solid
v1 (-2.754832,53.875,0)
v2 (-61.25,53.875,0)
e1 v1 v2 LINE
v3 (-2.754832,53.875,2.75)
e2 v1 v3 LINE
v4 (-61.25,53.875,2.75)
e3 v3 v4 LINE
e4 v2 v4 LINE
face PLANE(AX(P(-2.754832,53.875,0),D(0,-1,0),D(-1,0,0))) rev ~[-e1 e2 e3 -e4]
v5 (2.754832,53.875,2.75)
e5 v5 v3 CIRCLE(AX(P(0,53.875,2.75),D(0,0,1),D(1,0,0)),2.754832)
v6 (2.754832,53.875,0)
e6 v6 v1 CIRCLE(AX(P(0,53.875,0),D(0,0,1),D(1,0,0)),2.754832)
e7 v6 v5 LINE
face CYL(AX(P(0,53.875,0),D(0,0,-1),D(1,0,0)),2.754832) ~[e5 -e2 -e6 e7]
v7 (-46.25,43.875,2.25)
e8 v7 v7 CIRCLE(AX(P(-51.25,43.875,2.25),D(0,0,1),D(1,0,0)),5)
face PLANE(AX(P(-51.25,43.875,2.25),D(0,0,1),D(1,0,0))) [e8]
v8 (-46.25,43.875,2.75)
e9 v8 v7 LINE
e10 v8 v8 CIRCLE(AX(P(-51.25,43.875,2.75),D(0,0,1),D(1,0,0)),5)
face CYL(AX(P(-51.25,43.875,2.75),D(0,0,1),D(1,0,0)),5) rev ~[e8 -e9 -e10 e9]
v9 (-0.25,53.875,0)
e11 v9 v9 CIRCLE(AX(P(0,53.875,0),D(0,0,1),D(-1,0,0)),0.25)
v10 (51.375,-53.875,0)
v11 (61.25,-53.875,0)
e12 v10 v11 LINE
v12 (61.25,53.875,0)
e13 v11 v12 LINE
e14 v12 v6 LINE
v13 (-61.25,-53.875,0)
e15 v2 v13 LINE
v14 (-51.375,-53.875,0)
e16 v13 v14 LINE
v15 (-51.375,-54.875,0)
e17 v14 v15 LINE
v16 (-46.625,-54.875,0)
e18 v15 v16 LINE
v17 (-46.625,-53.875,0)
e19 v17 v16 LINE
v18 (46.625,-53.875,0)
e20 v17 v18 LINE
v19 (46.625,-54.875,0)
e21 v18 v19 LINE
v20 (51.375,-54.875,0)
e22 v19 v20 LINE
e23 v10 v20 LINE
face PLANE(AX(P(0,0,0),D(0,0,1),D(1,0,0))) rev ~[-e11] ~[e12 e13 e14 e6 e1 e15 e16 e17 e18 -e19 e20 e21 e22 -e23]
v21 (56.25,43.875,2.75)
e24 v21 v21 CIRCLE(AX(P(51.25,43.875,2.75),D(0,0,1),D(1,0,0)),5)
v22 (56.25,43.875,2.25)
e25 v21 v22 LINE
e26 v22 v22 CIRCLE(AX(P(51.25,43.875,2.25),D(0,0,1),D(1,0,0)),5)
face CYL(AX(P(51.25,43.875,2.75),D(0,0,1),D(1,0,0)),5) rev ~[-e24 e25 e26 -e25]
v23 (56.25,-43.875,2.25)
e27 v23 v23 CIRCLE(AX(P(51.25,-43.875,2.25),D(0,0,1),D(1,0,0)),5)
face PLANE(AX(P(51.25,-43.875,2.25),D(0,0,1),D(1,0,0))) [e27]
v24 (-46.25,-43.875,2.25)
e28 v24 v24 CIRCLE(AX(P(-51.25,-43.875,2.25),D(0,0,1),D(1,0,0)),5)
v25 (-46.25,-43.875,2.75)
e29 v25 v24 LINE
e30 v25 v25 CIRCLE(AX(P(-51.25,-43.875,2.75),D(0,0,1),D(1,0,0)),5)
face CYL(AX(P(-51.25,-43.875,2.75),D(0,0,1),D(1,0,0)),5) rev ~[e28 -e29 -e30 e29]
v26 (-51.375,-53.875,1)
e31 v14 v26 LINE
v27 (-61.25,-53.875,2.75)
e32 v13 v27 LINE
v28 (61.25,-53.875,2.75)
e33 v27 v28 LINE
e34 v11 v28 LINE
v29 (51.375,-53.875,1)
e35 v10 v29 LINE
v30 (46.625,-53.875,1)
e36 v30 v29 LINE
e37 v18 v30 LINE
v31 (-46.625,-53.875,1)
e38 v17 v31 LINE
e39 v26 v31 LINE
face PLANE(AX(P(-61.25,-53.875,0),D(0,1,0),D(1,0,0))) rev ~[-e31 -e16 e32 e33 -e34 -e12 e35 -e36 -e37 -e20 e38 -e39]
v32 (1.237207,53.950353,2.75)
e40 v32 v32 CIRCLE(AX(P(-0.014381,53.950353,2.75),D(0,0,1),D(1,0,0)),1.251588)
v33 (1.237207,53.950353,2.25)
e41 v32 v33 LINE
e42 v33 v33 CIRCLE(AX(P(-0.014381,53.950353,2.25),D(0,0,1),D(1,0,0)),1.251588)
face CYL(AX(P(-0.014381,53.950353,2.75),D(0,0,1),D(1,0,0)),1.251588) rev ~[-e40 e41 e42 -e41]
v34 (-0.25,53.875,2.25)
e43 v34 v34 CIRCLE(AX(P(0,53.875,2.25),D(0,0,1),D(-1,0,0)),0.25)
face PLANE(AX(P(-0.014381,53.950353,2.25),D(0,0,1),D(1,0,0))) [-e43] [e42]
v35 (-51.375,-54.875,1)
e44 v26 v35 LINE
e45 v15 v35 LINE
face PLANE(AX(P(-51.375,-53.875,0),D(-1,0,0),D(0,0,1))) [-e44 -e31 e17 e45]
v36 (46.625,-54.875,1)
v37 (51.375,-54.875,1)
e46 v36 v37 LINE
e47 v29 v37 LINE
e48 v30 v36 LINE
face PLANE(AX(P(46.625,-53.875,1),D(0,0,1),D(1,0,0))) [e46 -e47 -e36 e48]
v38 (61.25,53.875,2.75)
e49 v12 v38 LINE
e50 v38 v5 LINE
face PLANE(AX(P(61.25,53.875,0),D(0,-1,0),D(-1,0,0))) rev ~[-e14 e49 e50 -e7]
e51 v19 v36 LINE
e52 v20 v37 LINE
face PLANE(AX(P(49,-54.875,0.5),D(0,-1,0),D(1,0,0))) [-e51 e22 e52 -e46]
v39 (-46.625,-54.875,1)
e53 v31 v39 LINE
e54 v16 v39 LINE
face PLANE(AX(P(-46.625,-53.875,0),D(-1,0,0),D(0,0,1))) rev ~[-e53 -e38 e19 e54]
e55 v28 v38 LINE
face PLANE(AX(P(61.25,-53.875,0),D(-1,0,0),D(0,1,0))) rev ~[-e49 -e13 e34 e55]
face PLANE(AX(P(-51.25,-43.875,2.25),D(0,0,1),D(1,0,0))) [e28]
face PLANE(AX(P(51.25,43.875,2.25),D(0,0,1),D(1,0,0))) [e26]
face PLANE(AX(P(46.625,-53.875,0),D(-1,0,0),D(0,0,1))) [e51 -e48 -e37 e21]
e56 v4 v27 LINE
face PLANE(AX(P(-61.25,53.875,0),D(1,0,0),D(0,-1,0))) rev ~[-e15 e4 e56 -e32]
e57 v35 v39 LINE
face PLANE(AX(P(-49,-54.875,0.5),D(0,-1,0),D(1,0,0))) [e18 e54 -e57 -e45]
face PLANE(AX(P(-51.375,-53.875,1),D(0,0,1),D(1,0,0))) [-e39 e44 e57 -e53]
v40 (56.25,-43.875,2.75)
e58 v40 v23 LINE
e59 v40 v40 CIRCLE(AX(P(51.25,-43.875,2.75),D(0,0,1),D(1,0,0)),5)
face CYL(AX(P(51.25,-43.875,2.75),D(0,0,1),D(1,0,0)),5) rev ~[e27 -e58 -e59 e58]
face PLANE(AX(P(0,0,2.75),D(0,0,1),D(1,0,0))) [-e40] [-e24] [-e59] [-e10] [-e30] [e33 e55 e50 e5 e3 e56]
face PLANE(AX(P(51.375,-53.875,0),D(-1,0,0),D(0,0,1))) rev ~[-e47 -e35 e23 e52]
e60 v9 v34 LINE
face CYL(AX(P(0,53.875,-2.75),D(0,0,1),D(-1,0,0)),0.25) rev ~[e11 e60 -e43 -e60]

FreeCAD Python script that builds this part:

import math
import FreeCAD as App
import Part
import Sketcher
from FreeCAD import Vector


def add_polygon(sketch, points):
    """Adds a closed chain of lines whose ends are joined by coincident constraints."""
    first, n = sketch.GeometryCount, len(points)
    for a, b in zip(points, points[1:] + points[:1]):
        sketch.addGeometry(Part.LineSegment(App.Vector(*a, 0), App.Vector(*b, 0)), False)
    for i in range(n):
        sketch.addConstraint(Sketcher.Constraint("Coincident", first + i, 2, first + (i + 1) % n, 1))

doc = App.newDocument("Part")
body = doc.addObject("PartDesign::Body", "Body")

sketch1 = body.newObject("Sketcher::SketchObject", "Sketch")
sketch1.AttachmentSupport = (doc.getObject("XY_Plane"), [""])
sketch1.MapMode = "FlatFace"
sketch1.addGeometry([
    Part.LineSegment(Vector(61.25, -53.875, 0), Vector(61.25, 53.875, 0)),
    Part.LineSegment(Vector(61.25, 53.875, 0), Vector(2.754832, 53.875, 0)),
    Part.ArcOfCircle(Part.Circle(Vector(0, 53.875, 0), Vector(0, 0, 1), 2.754832), math.radians(0), math.radians(180)),
    Part.LineSegment(Vector(-2.754832, 53.875, 0), Vector(-61.25, 53.875, 0)),
    Part.LineSegment(Vector(-61.25, 53.875, 0), Vector(-61.25, -53.875, 0)),
    Part.LineSegment(Vector(-61.25, -53.875, 0), Vector(61.25, -53.875, 0)),
], False)
sketch1.addConstraint([
    Sketcher.Constraint("Coincident", 0, 2, 1, 1),
    Sketcher.Constraint("Coincident", 1, 2, 2, 1),
    Sketcher.Constraint("Coincident", 2, 2, 3, 1),
    Sketcher.Constraint("Coincident", 3, 2, 4, 1),
    Sketcher.Constraint("Coincident", 4, 2, 5, 1),
    Sketcher.Constraint("Coincident", 5, 2, 0, 1),
    Sketcher.Constraint("Vertical", 0),
    Sketcher.Constraint("Horizontal", 1),
    Sketcher.Constraint("Horizontal", 3),
    Sketcher.Constraint("Vertical", 4),
    Sketcher.Constraint("Horizontal", 5),
    Sketcher.Constraint("Symmetric", 0, 2, 4, 2, -1, 1),
    Sketcher.Constraint("Symmetric", 1, 2, 2, 2, -2),
    Sketcher.Constraint("Horizontal", 2, 3, 0, 2),
    Sketcher.Constraint("DistanceX", 5, 1, 5, 2, 122.5),
    Sketcher.Constraint("DistanceY", 0, 1, 0, 2, 107.75),
    Sketcher.Constraint("Radius", 2, 2.754832),
])
pad1 = body.newObject("PartDesign::Pad", "Pad")
pad1.Profile = sketch1
pad1.Length = 2.75

sketch2 = body.newObject("Sketcher::SketchObject", "Sketch001")
sketch2.AttachmentSupport = (doc.getObject("XZ_Plane"), [""])
sketch2.MapMode = "FlatFace"
sketch2.AttachmentOffset = App.Placement(Vector(0, 0, 53.875), App.Rotation())
add_polygon(sketch2, [(-51.375, 1), (-51.375, 0), (-46.625, 0), (-46.625, 1)])
add_polygon(sketch2, [(46.625, 1), (46.625, 0), (51.375, 0), (51.375, 1)])
sketch2.addConstraint([
    Sketcher.Constraint("Vertical", 0),
    Sketcher.Constraint("Horizontal", 1),
    Sketcher.Constraint("Vertical", 2),
    Sketcher.Constraint("Horizontal", 3),
    Sketcher.Constraint("Vertical", 4),
    Sketcher.Constraint("Horizontal", 5),
    Sketcher.Constraint("Vertical", 6),
    Sketcher.Constraint("Horizontal", 7),
    Sketcher.Constraint("Symmetric", 1, 2, 4, 2, -1, 1),
    Sketcher.Constraint("Symmetric", 0, 2, 5, 2, -2),
    Sketcher.Constraint("Horizontal", 3, 2, 6, 2),
    Sketcher.Constraint("DistanceY", 0, 2, 0, 1, 1.0),
    Sketcher.Constraint("DistanceX", 0, 2, 4, 2, 98.0),
    Sketcher.Constraint("DistanceX", 1, 1, 1, 2, 4.75),
])
pad2 = body.newObject("PartDesign::Pad", "Pad001")
pad2.Profile = sketch2
pad2.Length = 1

sketch3 = body.newObject("Sketcher::SketchObject", "Sketch002")
sketch3.AttachmentSupport = (doc.getObject("XY_Plane"), [""])
sketch3.MapMode = "FlatFace"
sketch3.addGeometry(Part.Circle(Vector(0, 53.875, 0), Vector(0, 0, 1), 0.25), False)
sketch3.addConstraint([
    Sketcher.Constraint("PointOnObject", 0, 3, -2),
    Sketcher.Constraint("Diameter", 0, 0.5),
    Sketcher.Constraint("DistanceY", -1, 1, 0, 3, 53.875),
])
doc.recompute()
hole = body.newObject("PartDesign::Hole", "Hole")
hole.Profile = sketch3
hole.ThreadType = "None"
hole.Diameter = 0.5
hole.DepthType = "Dimension"
hole.Depth = 2.75
hole.DrillPoint = "Angled"
hole.DrillPointAngle = 118
hole.Reversed = True

sketch4 = body.newObject("Sketcher::SketchObject", "Sketch003")
sketch4.AttachmentSupport = (doc.getObject("XY_Plane"), [""])
sketch4.MapMode = "FlatFace"
sketch4.AttachmentOffset = App.Placement(Vector(0, 0, 2.75), App.Rotation())
sketch4.addGeometry([
    Part.Circle(Vector(51.25, 43.875, 0), Vector(0, 0, 1), 5),
    Part.Circle(Vector(-0.014381, 53.950353, 0), Vector(0, 0, 1), 1.251588),
    Part.Circle(Vector(0, 53.875, 0), Vector(0, 0, 1), 0.25),
    Part.Circle(Vector(-51.25, 43.875, 0), Vector(0, 0, 1), 5),
    Part.Circle(Vector(51.25, -43.875, 0), Vector(0, 0, 1), 5),
    Part.Circle(Vector(-51.25, -43.875, 0), Vector(0, 0, 1), 5),
], False)
sketch4.addConstraint([
    Sketcher.Constraint("Equal", 0, 3),
    Sketcher.Constraint("Equal", 3, 4),
    Sketcher.Constraint("Equal", 4, 5),
    Sketcher.Constraint("Symmetric", 3, 3, 4, 3, -1, 1),
    Sketcher.Constraint("Symmetric", 0, 3, 5, 3, -1, 1),
    Sketcher.Constraint("Symmetric", 0, 3, 3, 3, -2),
    Sketcher.Constraint("PointOnObject", 2, 3, -2),
    Sketcher.Constraint("Diameter", 0, 10.0),
    Sketcher.Constraint("Diameter", 2, 0.5),
    Sketcher.Constraint("DistanceY", 0, 3, 2, 3, 10.0),
    Sketcher.Constraint("DistanceX", 3, 3, 0, 3, 102.5),
    Sketcher.Constraint("DistanceY", 4, 3, 0, 3, 87.75),
    Sketcher.Constraint("Diameter", 1, 2.503177),
    Sketcher.Constraint("DistanceX", 1, 3, -1, 1, 0.014381),
    Sketcher.Constraint("DistanceY", -1, 1, 1, 3, 53.950353),
])
pocket1 = body.newObject("PartDesign::Pocket", "Pocket")
pocket1.Profile = sketch4
pocket1.Length = 0.5

doc.recompute()
